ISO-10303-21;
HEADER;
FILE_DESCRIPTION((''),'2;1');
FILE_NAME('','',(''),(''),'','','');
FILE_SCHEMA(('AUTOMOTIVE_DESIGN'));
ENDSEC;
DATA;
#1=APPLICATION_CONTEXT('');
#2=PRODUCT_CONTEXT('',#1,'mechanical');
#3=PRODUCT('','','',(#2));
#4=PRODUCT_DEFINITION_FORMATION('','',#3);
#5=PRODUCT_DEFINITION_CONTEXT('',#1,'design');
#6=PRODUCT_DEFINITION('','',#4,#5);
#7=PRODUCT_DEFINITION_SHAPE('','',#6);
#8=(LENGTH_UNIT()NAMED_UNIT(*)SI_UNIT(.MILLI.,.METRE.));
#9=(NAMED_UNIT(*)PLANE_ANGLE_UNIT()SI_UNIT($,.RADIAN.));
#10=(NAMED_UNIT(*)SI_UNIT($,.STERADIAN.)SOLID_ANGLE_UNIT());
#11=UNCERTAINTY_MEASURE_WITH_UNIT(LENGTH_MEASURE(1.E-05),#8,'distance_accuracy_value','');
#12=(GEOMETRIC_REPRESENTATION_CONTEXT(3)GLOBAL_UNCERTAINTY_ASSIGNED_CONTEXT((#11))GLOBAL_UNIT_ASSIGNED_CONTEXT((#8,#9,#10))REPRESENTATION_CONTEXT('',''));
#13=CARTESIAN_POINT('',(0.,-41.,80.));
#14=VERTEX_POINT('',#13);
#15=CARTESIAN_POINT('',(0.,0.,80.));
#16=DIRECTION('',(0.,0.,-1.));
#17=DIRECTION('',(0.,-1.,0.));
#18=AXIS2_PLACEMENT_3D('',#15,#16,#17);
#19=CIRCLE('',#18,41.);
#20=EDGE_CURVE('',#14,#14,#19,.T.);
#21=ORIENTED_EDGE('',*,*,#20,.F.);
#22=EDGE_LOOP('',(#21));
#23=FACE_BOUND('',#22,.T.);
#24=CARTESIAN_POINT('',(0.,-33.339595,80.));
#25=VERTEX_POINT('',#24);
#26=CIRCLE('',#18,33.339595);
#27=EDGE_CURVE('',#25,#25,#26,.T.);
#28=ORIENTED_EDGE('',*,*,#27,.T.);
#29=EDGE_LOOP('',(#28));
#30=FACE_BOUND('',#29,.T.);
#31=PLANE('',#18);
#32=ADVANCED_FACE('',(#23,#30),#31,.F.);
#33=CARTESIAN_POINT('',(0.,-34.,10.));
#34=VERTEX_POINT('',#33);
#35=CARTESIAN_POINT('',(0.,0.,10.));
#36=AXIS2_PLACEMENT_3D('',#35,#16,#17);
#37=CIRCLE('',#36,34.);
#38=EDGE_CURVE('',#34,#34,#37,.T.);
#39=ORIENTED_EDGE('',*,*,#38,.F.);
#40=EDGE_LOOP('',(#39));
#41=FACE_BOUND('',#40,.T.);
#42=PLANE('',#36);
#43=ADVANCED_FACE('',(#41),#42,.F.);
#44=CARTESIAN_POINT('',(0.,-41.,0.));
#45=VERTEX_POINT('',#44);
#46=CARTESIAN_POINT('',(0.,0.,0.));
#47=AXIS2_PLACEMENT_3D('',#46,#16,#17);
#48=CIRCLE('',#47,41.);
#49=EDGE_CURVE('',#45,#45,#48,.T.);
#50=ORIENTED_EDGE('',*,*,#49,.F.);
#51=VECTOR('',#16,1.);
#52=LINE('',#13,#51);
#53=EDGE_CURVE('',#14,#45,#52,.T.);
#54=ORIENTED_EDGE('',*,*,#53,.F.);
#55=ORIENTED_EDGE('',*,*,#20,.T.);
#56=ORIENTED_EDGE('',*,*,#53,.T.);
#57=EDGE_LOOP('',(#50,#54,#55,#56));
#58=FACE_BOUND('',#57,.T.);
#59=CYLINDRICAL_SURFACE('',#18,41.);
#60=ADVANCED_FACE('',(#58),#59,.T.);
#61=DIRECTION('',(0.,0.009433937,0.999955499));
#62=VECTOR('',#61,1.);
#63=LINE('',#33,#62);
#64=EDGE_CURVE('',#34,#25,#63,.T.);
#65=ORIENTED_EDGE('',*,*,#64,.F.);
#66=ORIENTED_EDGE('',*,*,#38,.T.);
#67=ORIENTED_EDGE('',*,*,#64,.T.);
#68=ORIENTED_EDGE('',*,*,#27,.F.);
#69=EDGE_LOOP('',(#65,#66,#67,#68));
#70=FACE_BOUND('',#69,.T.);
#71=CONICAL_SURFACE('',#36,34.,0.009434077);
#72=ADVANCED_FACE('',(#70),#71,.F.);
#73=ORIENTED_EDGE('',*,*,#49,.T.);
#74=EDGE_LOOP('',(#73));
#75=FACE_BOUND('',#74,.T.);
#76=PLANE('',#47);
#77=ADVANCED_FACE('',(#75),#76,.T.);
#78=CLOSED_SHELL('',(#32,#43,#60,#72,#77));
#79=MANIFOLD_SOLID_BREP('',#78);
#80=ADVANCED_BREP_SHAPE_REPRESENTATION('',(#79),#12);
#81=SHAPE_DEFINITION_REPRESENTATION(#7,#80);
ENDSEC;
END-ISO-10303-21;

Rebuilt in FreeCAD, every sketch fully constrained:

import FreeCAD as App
import Part
import Sketcher
Q = App.Units.Quantity

doc = App.newDocument("Part")
body = doc.addObject("PartDesign::Body", "Body")

# Sketch on YZ plane
sketch1 = body.newObject("Sketcher::SketchObject", "Sketch")
sketch1.AttachmentSupport = (doc.getObject("YZ_Plane"), [""])
sketch1.MapMode = "FlatFace"
sketch1.addGeometry(Part.LineSegment(App.Vector(0, 0, 0), App.Vector(0, 10, 0)), False)
sketch1.addGeometry(Part.LineSegment(App.Vector(0, 10, 0), App.Vector(-34, 10, 0)), False)
sketch1.addGeometry(Part.LineSegment(App.Vector(-34, 10, 0), App.Vector(-33, 80, 0)), False)
sketch1.addGeometry(Part.LineSegment(App.Vector(-33, 80, 0), App.Vector(-41, 80, 0)), False)
sketch1.addGeometry(Part.LineSegment(App.Vector(-41, 80, 0), App.Vector(-41, 0, 0)), False)
sketch1.addGeometry(Part.LineSegment(App.Vector(-41, 0, 0), App.Vector(0, 0, 0)), False)
sketch1.addConstraint(Sketcher.Constraint("Coincident", 0, 2, 1, 1))
sketch1.addConstraint(Sketcher.Constraint("Coincident", 1, 2, 2, 1))
sketch1.addConstraint(Sketcher.Constraint("Coincident", 2, 2, 3, 1))
sketch1.addConstraint(Sketcher.Constraint("Coincident", 3, 2, 4, 1))
sketch1.addConstraint(Sketcher.Constraint("Coincident", 4, 2, 5, 1))
sketch1.addConstraint(Sketcher.Constraint("Coincident", 5, 2, 0, 1))
sketch1.addConstraint(Sketcher.Constraint("Vertical", 0))
sketch1.addConstraint(Sketcher.Constraint("Horizontal", 1))
sketch1.addConstraint(Sketcher.Constraint("Horizontal", 3))
sketch1.addConstraint(Sketcher.Constraint("Vertical", 4))
sketch1.addConstraint(Sketcher.Constraint("Horizontal", 5))
sketch1.addConstraint(Sketcher.Constraint("Coincident", 5, 2, -1, 1))
sketch1.addConstraint(Sketcher.Constraint("DistanceX", 1, 2, 1, 1, Q("34 mm")))
sketch1.addConstraint(Sketcher.Constraint("DistanceX", 5, 1, 5, 2, Q("41 mm")))
sketch1.addConstraint(Sketcher.Constraint("DistanceY", 0, 1, 0, 2, Q("10 mm")))
sketch1.addConstraint(Sketcher.Constraint("DistanceY", 4, 2, 4, 1, Q("80 mm")))
sketch1.addConstraint(Sketcher.Constraint("DistanceX", 3, 2, 3, 1, Q("7.660405 mm")))
revolution = body.newObject("PartDesign::Revolution", "Revolution")
revolution.Profile = sketch1
revolution.ReferenceAxis = (sketch1, ["V_Axis"])
revolution.Angle = 360

doc.recompute()
